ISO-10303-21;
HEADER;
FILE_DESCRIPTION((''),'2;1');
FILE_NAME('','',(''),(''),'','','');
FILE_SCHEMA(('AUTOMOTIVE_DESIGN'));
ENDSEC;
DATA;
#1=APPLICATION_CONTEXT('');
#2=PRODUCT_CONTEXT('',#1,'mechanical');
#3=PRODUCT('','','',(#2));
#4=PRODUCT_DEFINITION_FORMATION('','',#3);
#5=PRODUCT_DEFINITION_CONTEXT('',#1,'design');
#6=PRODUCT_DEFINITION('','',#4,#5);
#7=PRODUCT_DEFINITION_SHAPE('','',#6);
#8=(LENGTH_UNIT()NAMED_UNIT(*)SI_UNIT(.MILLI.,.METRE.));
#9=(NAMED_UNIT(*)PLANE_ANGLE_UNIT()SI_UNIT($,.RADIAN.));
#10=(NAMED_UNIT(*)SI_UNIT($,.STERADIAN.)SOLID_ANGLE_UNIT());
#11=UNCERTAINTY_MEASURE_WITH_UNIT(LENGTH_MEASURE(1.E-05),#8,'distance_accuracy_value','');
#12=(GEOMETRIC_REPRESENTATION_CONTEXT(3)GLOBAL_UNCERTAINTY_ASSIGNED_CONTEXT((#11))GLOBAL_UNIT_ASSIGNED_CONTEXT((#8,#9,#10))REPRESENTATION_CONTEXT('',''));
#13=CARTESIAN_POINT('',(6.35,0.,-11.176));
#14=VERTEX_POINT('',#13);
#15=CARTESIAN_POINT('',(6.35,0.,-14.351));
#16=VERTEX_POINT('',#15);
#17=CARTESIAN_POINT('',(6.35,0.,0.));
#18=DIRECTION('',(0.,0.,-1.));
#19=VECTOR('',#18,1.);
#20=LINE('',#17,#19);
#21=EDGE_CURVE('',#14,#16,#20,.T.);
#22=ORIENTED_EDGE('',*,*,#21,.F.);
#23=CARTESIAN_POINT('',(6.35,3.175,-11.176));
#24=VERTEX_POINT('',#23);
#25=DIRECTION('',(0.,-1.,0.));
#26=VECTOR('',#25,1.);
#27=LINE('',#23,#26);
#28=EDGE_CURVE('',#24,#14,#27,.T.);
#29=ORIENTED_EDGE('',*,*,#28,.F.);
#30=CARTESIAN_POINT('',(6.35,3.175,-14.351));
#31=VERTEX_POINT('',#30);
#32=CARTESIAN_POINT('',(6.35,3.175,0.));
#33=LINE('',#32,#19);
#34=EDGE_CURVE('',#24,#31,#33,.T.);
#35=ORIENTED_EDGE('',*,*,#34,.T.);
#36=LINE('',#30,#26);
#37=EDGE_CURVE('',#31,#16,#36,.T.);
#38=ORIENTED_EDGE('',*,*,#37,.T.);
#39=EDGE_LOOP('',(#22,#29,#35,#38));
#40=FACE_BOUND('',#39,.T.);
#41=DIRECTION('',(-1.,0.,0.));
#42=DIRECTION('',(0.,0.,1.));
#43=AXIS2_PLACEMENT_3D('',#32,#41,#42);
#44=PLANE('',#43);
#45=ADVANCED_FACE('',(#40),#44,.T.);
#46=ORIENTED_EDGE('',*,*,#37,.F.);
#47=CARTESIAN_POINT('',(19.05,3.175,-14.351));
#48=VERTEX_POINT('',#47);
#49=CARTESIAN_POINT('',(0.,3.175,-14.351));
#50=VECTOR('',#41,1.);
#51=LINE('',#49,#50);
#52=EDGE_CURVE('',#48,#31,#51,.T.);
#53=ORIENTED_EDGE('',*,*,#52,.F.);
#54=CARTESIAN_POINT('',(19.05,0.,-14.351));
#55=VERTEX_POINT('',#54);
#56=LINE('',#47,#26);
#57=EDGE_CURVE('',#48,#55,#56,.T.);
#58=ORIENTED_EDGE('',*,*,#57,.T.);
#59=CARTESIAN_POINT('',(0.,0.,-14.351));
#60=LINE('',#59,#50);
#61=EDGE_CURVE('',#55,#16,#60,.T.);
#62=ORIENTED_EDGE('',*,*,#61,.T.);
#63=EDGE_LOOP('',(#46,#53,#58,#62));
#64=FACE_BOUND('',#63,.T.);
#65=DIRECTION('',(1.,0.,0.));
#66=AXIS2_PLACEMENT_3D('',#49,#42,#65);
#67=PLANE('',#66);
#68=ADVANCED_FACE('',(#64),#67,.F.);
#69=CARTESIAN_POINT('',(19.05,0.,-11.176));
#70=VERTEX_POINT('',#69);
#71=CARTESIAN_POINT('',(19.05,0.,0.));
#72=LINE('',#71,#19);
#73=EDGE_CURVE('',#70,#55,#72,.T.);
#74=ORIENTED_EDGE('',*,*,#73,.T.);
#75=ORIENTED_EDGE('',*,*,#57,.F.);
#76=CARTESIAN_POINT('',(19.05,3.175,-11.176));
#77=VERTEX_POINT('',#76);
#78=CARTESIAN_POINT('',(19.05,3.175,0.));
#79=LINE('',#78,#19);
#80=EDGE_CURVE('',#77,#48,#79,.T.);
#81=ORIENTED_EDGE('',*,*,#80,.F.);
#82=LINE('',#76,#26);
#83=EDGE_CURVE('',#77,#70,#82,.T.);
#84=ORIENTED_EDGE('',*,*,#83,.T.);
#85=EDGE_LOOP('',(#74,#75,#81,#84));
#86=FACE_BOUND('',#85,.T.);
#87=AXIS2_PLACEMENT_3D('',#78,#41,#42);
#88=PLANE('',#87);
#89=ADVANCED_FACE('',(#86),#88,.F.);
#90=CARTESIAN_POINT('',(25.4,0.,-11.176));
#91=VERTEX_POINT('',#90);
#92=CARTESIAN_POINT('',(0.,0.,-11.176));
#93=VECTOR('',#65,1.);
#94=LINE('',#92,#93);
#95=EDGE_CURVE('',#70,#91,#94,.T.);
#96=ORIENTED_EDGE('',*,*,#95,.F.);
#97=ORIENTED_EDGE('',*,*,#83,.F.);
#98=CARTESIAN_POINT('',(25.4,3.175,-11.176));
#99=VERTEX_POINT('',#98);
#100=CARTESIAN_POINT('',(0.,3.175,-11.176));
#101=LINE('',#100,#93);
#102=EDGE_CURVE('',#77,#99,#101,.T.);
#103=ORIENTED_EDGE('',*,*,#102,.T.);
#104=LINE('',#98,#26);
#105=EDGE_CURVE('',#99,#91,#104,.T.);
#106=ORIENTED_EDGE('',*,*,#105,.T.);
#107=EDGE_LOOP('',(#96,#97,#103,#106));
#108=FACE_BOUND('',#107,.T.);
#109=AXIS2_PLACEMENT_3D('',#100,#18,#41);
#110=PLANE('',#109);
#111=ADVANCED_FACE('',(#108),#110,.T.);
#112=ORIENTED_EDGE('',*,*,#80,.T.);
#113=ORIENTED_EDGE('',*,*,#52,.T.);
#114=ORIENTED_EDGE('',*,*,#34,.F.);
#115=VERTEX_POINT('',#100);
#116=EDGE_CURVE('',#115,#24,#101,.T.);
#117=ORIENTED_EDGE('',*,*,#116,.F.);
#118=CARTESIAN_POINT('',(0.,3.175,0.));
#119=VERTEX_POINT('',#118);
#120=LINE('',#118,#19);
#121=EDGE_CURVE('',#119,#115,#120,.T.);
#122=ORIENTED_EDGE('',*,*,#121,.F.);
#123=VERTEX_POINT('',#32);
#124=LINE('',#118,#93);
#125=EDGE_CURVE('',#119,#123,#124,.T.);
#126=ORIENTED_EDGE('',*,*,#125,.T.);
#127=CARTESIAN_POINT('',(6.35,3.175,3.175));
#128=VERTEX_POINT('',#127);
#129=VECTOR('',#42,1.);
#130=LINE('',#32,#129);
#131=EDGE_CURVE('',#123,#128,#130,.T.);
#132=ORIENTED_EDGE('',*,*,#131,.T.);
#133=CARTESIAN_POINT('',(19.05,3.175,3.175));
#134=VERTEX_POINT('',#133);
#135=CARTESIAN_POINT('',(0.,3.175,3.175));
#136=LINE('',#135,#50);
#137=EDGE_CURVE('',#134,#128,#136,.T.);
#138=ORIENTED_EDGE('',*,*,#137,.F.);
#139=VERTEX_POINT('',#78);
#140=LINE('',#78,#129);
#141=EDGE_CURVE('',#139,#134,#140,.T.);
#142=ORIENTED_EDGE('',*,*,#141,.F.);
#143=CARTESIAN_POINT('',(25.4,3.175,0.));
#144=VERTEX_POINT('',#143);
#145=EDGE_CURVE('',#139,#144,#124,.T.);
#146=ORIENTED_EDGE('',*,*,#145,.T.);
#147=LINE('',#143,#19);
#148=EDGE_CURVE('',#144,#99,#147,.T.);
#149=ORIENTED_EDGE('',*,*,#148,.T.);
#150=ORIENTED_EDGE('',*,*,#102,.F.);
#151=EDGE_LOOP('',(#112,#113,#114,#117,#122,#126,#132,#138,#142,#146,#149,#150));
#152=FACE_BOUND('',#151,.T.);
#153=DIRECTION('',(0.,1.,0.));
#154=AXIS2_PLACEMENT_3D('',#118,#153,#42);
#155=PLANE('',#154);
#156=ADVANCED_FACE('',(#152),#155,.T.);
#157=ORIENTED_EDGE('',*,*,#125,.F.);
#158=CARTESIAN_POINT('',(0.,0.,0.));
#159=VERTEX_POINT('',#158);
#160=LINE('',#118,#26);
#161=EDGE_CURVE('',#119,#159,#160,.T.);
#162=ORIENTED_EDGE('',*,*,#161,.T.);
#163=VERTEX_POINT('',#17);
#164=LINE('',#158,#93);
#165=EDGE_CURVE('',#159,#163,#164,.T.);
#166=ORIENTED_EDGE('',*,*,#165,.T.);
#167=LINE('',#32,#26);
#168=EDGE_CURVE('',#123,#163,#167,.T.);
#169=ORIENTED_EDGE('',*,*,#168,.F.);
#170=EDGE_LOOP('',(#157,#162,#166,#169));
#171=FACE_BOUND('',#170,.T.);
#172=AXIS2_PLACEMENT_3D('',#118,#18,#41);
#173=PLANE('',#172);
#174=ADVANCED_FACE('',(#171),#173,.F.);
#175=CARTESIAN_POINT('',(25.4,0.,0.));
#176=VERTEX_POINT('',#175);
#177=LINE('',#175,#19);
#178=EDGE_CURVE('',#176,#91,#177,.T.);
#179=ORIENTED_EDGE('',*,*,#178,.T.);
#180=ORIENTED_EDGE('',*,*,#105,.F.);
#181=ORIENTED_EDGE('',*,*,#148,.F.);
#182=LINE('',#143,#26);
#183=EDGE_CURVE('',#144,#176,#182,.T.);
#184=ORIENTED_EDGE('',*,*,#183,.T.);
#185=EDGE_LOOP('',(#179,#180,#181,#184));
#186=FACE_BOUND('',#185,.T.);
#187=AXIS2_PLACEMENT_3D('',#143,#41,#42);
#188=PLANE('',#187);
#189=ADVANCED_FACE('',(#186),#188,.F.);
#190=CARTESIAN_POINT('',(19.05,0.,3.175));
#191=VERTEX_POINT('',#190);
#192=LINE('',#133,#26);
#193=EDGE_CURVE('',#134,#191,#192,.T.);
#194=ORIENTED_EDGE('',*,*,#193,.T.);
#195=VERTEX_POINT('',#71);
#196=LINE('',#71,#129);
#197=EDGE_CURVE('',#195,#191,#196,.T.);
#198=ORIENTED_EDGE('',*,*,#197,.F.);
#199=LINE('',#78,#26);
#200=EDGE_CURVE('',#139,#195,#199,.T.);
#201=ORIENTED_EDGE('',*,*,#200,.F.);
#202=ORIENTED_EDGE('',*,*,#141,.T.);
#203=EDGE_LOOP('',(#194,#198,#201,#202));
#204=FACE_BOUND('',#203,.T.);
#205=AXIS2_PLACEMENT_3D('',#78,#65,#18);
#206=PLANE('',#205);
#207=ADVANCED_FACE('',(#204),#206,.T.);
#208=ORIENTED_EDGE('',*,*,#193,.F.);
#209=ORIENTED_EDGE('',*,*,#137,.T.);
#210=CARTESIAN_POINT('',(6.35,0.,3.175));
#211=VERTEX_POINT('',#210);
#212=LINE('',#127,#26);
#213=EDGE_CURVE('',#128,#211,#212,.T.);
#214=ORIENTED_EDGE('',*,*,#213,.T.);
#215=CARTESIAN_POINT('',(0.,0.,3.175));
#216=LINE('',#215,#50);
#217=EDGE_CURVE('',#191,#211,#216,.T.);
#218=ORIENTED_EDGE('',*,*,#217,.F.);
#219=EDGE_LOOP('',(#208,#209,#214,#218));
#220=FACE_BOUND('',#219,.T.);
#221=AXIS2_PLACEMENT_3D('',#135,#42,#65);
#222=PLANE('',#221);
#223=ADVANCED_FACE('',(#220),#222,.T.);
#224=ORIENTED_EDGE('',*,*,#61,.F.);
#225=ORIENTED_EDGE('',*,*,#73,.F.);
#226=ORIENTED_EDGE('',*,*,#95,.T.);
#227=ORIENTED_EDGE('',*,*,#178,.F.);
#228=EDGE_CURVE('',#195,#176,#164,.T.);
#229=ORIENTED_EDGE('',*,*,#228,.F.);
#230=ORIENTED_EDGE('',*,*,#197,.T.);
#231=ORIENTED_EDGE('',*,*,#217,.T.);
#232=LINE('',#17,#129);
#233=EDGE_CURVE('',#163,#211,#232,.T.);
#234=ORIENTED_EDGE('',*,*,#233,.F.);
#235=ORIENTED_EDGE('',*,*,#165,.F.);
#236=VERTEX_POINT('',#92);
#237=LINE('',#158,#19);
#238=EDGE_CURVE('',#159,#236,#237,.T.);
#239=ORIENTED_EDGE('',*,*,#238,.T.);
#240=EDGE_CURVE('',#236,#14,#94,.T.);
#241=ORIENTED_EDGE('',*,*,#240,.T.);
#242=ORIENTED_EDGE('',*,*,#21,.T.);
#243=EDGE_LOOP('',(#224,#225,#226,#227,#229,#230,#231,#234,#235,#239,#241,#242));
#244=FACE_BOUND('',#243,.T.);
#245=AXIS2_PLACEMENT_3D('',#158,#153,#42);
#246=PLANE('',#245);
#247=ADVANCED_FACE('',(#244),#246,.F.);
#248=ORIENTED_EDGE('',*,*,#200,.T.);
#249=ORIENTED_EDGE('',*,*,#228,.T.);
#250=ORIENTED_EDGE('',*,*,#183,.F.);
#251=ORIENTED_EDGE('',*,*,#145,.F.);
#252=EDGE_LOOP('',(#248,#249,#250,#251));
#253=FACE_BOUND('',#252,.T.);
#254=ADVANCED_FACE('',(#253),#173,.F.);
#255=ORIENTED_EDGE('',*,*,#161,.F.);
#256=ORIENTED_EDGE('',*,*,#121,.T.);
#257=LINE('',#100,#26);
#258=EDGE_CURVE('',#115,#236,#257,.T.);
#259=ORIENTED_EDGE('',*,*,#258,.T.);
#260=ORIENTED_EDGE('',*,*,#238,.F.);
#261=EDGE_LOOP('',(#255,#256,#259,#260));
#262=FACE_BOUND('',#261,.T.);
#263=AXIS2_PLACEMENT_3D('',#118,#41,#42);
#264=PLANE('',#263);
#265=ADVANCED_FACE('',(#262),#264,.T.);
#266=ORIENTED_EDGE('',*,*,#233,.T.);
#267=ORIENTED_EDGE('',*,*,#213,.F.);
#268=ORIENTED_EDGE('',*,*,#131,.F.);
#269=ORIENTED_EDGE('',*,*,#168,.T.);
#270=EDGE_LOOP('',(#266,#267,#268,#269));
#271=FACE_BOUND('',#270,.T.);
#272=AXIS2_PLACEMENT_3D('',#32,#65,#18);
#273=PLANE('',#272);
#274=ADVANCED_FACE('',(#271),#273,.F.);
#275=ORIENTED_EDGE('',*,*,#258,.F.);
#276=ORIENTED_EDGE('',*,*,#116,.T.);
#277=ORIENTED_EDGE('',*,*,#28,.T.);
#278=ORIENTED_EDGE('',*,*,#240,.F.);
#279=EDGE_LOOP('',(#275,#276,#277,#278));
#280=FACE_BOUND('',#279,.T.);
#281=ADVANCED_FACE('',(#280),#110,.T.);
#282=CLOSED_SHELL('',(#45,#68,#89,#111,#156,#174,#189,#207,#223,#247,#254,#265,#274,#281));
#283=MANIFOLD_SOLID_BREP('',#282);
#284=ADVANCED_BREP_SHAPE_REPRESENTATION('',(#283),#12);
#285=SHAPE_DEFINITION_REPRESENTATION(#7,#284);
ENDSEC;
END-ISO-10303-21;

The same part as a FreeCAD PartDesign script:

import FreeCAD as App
import Part
import Sketcher
from FreeCAD import Vector
Q = App.Units.Quantity


def add_polygon(sketch, points):
    """Adds a closed chain of lines whose ends are joined by coincident constraints."""
    first, n = sketch.GeometryCount, len(points)
    for a, b in zip(points, points[1:] + points[:1]):
        sketch.addGeometry(Part.LineSegment(App.Vector(*a, 0), App.Vector(*b, 0)), False)
    for i in range(n):
        sketch.addConstraint(Sketcher.Constraint("Coincident", first + i, 2, first + (i + 1) % n, 1))

doc = App.newDocument("Part")
body = doc.addObject("PartDesign::Body", "Body")

sketch1 = doc.addObject("Sketcher::SketchObject", "Sketch")
body.addObject(sketch1)
sketch1.AttachmentSupport = (doc.XZ_Plane, [""])
sketch1.MapMode = "FlatFace"
add_polygon(sketch1, [(0, -11.2), (0, 0), (6.3, 0), (6.3, 3.2), (19.1, 3.2), (19.1, 0), (25.4, 0), (25.4, -11.2), (19.1, -11.2), (19.1, -14.4), (6.3, -14.4), (6.3, -11.2)])
sketch1.addConstraint([
    Sketcher.Constraint("Vertical", 0),
    Sketcher.Constraint("Horizontal", 1),
    Sketcher.Constraint("Vertical", 2),
    Sketcher.Constraint("Horizontal", 3),
    Sketcher.Constraint("Vertical", 4),
    Sketcher.Constraint("Horizontal", 5),
    Sketcher.Constraint("Vertical", 6),
    Sketcher.Constraint("Horizontal", 7),
    Sketcher.Constraint("Vertical", 8),
    Sketcher.Constraint("Horizontal", 9),
    Sketcher.Constraint("Vertical", 10),
    Sketcher.Constraint("Horizontal", 11),
    Sketcher.Constraint("Coincident", 0, 2, -1, 1),
    Sketcher.Constraint("PointOnObject", 4, 2, -1),
    Sketcher.Constraint("Horizontal", 7, 2, 10, 2),
    Sketcher.Constraint("Vertical", 4, 2, 7, 2),
    Sketcher.Constraint("Vertical", 2, 2, 9, 2),
    Sketcher.Constraint("Equal", 1, 5),
    Sketcher.Constraint("Equal", 4, 8),
    Sketcher.Constraint("DistanceX", 3, 1, 3, 2, Q("0.5 in")),
    Sketcher.Constraint("DistanceX", -1, 1, 5, 2, Q("1 in")),
    Sketcher.Constraint("DistanceY", 0, 1, 0, 2, Q("0.44 in")),
    Sketcher.Constraint("DistanceY", 2, 1, 2, 2, Q("0.125 in")),
])
pad1 = doc.addObject("PartDesign::Pad", "Pad")
body.addObject(pad1)
pad1.Profile = sketch1
pad1.Length = Q("0.125 in")
pad1.Reversed = True

doc.recompute()
